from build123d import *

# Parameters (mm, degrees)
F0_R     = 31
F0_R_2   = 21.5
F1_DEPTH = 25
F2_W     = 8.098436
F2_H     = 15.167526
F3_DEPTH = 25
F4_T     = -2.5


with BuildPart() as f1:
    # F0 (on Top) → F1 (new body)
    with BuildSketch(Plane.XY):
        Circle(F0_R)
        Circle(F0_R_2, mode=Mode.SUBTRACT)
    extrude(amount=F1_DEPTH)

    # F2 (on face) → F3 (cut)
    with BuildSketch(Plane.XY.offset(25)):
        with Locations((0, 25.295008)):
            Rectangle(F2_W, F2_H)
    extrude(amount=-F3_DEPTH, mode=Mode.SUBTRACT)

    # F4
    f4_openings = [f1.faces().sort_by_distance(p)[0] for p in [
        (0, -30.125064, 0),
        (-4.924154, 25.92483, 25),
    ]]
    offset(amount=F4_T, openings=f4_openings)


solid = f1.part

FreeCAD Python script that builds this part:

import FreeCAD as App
import Part
import Sketcher

V = App.Vector


def faces_at(feature, points):
    """Names of the faces that lie closest to the given points."""
    faces = feature.Shape.Faces
    near = lambda p: min(range(len(faces)), key=lambda i: faces[i].distToShape(Part.Vertex(*p))[0])
    return sorted({f"Face{near(p) + 1}" for p in points})

doc = App.newDocument("Part")
params = doc.addObject("Spreadsheet::Sheet", "Params")
for row, (alias, value) in enumerate([
    ("sketch1_diameter", "62 mm"),
    ("sketch1_diameter2", "43 mm"),
    ("pad1_length", "25 mm"),
    ("pocket1_length", "25 mm"),
    ("thickness_wall", "2.5 mm"),
], start=1):
    params.set(f"A{row}", alias)
    params.set(f"B{row}", "=" + value)
    params.setAlias(f"B{row}", alias)

body = doc.addObject("PartDesign::Body", "Body")

sketch1 = body.newObject("Sketcher::SketchObject", "Sketch")
sketch1.AttachmentSupport = (doc.getObject("XY_Plane"), [""])
sketch1.MapMode = "FlatFace"
sketch1.addGeometry([
    Part.Circle(V(0, 0, 0), V(0, 0, 1), 31),
    Part.Circle(V(0, 0, 0), V(0, 0, 1), 22),
], False)
sketch1.addConstraint([
    Sketcher.Constraint("Coincident", 0, 3, -1, 1),
    Sketcher.Constraint("Coincident", 1, 3, -1, 1),
    Sketcher.Constraint("Diameter", 0, 62.0),
    Sketcher.Constraint("Diameter", 1, 43.0),
])
sketch1.setExpression("Constraints[2]", "Params.sketch1_diameter")
sketch1.setExpression("Constraints[3]", "Params.sketch1_diameter2")
pad1 = body.newObject("PartDesign::Pad", "Pad")
pad1.Profile = sketch1
pad1.setExpression("Length", "Params.pad1_length")

sketch2 = body.newObject("Sketcher::SketchObject", "Sketch001")
sketch2.AttachmentSupport = (doc.getObject("XY_Plane"), [""])
sketch2.MapMode = "FlatFace"
sketch2.AttachmentOffset = App.Placement(V(0, 0, 25), App.Rotation())
sketch2.addGeometry([
    Part.LineSegment(V(-4, 33, 0), V(-4, 18, 0)),
    Part.LineSegment(V(-4, 18, 0), V(4, 18, 0)),
    Part.LineSegment(V(4, 18, 0), V(4, 33, 0)),
    Part.LineSegment(V(4, 33, 0), V(-4, 33, 0)),
], False)
sketch2.addConstraint([
    Sketcher.Constraint("Coincident", 0, 2, 1, 1),
    Sketcher.Constraint("Coincident", 1, 2, 2, 1),
    Sketcher.Constraint("Coincident", 2, 2, 3, 1),
    Sketcher.Constraint("Coincident", 3, 2, 0, 1),
    Sketcher.Constraint("Vertical", 0),
    Sketcher.Constraint("Horizontal", 1),
    Sketcher.Constraint("Vertical", 2),
    Sketcher.Constraint("Horizontal", 3),
    Sketcher.Constraint("DistanceX", 1, 1, 1, 2, 8.098436),
    Sketcher.Constraint("DistanceY", 0, 2, 0, 1, 15.167526),
    Sketcher.Constraint("DistanceY", -1, 1, 2, 2, 32.878771),
    Sketcher.Constraint("DistanceX", 0, 2, -1, 1, 4.049218),
])
pocket1 = body.newObject("PartDesign::Pocket", "Pocket")
pocket1.Profile = sketch2
pocket1.setExpression("Length", "Params.pocket1_length")
doc.recompute()

thickness = body.newObject("PartDesign::Thickness", "Thickness")
thickness.Base = (pocket1, faces_at(pocket1, [(-24.8, -0.133, 0), (-24.8, -0.133, 25)]))
thickness.setExpression("Value", "Params.thickness_wall")
thickness.Reversed = True
thickness.Join = "Arc"

doc.recompute()
